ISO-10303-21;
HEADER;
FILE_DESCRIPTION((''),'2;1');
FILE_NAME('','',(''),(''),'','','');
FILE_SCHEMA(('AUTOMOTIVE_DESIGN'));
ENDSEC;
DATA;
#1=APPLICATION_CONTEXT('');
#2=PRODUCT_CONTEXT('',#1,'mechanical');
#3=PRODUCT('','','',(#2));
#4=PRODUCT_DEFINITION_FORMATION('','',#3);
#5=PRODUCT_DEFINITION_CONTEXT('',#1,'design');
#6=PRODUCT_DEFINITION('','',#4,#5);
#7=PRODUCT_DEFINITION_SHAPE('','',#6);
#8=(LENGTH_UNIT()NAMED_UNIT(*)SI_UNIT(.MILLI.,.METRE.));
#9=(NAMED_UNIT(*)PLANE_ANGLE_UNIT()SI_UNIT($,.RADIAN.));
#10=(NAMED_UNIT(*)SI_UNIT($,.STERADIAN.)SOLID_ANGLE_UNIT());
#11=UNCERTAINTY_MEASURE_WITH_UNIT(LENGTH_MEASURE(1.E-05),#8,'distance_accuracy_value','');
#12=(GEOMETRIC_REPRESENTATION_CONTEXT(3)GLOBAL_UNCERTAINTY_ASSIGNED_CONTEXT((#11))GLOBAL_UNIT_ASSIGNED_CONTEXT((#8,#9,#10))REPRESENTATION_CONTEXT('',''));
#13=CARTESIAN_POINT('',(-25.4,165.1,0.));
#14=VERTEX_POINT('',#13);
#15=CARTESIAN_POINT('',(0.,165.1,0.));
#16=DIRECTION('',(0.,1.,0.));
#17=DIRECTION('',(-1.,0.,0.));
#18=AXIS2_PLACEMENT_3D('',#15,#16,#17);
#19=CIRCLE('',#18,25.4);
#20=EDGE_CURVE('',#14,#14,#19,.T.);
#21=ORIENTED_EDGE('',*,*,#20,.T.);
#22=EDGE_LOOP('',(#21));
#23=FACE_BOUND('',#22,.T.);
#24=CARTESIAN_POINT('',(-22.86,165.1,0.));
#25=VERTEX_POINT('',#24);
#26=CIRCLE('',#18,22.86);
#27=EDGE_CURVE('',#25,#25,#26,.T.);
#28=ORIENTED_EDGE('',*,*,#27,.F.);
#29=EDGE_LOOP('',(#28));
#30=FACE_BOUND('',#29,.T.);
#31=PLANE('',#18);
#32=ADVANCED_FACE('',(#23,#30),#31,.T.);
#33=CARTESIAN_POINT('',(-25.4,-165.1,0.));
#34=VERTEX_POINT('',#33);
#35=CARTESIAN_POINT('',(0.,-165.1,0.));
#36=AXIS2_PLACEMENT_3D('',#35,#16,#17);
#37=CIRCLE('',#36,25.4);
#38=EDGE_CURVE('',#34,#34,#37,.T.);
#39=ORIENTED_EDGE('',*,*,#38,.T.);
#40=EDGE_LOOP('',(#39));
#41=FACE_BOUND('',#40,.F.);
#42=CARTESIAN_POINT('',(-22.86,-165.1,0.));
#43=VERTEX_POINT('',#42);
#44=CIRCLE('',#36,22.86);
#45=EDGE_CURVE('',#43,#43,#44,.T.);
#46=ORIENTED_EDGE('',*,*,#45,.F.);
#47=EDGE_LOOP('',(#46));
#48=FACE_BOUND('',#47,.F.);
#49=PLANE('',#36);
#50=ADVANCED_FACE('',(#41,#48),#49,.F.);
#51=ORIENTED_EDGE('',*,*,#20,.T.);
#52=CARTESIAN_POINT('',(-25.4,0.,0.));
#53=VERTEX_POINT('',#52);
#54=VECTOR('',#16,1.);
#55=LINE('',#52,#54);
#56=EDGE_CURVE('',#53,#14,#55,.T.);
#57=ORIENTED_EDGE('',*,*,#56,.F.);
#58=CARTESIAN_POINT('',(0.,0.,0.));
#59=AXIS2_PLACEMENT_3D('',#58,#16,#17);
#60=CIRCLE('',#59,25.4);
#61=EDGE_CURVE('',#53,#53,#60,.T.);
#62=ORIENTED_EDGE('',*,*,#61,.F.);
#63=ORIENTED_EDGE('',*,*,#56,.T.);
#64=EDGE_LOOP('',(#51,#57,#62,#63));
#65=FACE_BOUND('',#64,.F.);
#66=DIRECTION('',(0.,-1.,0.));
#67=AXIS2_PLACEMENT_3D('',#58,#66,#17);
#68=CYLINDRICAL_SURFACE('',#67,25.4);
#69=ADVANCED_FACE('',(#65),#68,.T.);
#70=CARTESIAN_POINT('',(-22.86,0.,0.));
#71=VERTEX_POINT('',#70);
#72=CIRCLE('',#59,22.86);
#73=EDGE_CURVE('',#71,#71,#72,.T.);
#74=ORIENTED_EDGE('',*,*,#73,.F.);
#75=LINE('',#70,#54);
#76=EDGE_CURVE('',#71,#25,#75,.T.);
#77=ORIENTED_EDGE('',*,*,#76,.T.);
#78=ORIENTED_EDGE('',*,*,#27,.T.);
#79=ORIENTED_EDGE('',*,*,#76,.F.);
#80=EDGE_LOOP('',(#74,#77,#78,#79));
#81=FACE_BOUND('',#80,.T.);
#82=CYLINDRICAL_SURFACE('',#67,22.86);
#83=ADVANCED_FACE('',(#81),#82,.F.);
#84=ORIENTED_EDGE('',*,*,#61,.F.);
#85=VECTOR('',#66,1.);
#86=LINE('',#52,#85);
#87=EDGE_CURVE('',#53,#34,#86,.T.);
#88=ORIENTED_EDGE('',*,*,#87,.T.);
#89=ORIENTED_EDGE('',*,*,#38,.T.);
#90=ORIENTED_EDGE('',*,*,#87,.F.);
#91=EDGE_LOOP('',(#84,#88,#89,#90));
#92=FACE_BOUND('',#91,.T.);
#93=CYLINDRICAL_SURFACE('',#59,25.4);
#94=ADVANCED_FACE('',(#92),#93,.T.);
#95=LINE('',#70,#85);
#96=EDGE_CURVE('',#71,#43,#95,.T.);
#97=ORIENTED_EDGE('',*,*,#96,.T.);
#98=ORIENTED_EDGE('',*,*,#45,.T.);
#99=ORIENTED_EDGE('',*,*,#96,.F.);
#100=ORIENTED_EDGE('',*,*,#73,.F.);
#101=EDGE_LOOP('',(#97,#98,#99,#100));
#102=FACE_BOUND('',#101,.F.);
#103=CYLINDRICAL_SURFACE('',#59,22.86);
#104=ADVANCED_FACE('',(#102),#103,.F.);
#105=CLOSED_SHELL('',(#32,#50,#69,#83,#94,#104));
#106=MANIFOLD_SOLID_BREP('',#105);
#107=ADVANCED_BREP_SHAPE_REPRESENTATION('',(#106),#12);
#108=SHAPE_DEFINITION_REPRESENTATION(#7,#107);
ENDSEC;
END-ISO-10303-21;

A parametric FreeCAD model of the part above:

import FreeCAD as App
import Part
import Sketcher

V = App.Vector
Q = App.Units.Quantity

doc = App.newDocument("Part")
body = doc.addObject("PartDesign::Body", "Body")

sketch1 = body.newObject("Sketcher::SketchObject", "Sketch")
sketch1.AttachmentSupport = (doc.getObject("XZ_Plane"), [""])
sketch1.MapMode = "FlatFace"
sketch1.addGeometry([
    Part.Circle(V(0, 0, 0), V(0, 0, 1), 25),
    Part.Circle(V(0, 0, 0), V(0, 0, 1), 23),
], False)
sketch1.addConstraint([
    Sketcher.Constraint("Coincident", 0, 3, -1, 1),
    Sketcher.Constraint("Coincident", 1, 3, -1, 1),
    Sketcher.Constraint("Diameter", 0, Q("2 in")),
    Sketcher.Constraint("Diameter", 1, Q("1.8 in")),
])
pad1 = body.newObject("PartDesign::Pad", "Pad")
pad1.Profile = sketch1
pad1.Length = Q("13 in")
pad1.Midplane = True

doc.recompute()
